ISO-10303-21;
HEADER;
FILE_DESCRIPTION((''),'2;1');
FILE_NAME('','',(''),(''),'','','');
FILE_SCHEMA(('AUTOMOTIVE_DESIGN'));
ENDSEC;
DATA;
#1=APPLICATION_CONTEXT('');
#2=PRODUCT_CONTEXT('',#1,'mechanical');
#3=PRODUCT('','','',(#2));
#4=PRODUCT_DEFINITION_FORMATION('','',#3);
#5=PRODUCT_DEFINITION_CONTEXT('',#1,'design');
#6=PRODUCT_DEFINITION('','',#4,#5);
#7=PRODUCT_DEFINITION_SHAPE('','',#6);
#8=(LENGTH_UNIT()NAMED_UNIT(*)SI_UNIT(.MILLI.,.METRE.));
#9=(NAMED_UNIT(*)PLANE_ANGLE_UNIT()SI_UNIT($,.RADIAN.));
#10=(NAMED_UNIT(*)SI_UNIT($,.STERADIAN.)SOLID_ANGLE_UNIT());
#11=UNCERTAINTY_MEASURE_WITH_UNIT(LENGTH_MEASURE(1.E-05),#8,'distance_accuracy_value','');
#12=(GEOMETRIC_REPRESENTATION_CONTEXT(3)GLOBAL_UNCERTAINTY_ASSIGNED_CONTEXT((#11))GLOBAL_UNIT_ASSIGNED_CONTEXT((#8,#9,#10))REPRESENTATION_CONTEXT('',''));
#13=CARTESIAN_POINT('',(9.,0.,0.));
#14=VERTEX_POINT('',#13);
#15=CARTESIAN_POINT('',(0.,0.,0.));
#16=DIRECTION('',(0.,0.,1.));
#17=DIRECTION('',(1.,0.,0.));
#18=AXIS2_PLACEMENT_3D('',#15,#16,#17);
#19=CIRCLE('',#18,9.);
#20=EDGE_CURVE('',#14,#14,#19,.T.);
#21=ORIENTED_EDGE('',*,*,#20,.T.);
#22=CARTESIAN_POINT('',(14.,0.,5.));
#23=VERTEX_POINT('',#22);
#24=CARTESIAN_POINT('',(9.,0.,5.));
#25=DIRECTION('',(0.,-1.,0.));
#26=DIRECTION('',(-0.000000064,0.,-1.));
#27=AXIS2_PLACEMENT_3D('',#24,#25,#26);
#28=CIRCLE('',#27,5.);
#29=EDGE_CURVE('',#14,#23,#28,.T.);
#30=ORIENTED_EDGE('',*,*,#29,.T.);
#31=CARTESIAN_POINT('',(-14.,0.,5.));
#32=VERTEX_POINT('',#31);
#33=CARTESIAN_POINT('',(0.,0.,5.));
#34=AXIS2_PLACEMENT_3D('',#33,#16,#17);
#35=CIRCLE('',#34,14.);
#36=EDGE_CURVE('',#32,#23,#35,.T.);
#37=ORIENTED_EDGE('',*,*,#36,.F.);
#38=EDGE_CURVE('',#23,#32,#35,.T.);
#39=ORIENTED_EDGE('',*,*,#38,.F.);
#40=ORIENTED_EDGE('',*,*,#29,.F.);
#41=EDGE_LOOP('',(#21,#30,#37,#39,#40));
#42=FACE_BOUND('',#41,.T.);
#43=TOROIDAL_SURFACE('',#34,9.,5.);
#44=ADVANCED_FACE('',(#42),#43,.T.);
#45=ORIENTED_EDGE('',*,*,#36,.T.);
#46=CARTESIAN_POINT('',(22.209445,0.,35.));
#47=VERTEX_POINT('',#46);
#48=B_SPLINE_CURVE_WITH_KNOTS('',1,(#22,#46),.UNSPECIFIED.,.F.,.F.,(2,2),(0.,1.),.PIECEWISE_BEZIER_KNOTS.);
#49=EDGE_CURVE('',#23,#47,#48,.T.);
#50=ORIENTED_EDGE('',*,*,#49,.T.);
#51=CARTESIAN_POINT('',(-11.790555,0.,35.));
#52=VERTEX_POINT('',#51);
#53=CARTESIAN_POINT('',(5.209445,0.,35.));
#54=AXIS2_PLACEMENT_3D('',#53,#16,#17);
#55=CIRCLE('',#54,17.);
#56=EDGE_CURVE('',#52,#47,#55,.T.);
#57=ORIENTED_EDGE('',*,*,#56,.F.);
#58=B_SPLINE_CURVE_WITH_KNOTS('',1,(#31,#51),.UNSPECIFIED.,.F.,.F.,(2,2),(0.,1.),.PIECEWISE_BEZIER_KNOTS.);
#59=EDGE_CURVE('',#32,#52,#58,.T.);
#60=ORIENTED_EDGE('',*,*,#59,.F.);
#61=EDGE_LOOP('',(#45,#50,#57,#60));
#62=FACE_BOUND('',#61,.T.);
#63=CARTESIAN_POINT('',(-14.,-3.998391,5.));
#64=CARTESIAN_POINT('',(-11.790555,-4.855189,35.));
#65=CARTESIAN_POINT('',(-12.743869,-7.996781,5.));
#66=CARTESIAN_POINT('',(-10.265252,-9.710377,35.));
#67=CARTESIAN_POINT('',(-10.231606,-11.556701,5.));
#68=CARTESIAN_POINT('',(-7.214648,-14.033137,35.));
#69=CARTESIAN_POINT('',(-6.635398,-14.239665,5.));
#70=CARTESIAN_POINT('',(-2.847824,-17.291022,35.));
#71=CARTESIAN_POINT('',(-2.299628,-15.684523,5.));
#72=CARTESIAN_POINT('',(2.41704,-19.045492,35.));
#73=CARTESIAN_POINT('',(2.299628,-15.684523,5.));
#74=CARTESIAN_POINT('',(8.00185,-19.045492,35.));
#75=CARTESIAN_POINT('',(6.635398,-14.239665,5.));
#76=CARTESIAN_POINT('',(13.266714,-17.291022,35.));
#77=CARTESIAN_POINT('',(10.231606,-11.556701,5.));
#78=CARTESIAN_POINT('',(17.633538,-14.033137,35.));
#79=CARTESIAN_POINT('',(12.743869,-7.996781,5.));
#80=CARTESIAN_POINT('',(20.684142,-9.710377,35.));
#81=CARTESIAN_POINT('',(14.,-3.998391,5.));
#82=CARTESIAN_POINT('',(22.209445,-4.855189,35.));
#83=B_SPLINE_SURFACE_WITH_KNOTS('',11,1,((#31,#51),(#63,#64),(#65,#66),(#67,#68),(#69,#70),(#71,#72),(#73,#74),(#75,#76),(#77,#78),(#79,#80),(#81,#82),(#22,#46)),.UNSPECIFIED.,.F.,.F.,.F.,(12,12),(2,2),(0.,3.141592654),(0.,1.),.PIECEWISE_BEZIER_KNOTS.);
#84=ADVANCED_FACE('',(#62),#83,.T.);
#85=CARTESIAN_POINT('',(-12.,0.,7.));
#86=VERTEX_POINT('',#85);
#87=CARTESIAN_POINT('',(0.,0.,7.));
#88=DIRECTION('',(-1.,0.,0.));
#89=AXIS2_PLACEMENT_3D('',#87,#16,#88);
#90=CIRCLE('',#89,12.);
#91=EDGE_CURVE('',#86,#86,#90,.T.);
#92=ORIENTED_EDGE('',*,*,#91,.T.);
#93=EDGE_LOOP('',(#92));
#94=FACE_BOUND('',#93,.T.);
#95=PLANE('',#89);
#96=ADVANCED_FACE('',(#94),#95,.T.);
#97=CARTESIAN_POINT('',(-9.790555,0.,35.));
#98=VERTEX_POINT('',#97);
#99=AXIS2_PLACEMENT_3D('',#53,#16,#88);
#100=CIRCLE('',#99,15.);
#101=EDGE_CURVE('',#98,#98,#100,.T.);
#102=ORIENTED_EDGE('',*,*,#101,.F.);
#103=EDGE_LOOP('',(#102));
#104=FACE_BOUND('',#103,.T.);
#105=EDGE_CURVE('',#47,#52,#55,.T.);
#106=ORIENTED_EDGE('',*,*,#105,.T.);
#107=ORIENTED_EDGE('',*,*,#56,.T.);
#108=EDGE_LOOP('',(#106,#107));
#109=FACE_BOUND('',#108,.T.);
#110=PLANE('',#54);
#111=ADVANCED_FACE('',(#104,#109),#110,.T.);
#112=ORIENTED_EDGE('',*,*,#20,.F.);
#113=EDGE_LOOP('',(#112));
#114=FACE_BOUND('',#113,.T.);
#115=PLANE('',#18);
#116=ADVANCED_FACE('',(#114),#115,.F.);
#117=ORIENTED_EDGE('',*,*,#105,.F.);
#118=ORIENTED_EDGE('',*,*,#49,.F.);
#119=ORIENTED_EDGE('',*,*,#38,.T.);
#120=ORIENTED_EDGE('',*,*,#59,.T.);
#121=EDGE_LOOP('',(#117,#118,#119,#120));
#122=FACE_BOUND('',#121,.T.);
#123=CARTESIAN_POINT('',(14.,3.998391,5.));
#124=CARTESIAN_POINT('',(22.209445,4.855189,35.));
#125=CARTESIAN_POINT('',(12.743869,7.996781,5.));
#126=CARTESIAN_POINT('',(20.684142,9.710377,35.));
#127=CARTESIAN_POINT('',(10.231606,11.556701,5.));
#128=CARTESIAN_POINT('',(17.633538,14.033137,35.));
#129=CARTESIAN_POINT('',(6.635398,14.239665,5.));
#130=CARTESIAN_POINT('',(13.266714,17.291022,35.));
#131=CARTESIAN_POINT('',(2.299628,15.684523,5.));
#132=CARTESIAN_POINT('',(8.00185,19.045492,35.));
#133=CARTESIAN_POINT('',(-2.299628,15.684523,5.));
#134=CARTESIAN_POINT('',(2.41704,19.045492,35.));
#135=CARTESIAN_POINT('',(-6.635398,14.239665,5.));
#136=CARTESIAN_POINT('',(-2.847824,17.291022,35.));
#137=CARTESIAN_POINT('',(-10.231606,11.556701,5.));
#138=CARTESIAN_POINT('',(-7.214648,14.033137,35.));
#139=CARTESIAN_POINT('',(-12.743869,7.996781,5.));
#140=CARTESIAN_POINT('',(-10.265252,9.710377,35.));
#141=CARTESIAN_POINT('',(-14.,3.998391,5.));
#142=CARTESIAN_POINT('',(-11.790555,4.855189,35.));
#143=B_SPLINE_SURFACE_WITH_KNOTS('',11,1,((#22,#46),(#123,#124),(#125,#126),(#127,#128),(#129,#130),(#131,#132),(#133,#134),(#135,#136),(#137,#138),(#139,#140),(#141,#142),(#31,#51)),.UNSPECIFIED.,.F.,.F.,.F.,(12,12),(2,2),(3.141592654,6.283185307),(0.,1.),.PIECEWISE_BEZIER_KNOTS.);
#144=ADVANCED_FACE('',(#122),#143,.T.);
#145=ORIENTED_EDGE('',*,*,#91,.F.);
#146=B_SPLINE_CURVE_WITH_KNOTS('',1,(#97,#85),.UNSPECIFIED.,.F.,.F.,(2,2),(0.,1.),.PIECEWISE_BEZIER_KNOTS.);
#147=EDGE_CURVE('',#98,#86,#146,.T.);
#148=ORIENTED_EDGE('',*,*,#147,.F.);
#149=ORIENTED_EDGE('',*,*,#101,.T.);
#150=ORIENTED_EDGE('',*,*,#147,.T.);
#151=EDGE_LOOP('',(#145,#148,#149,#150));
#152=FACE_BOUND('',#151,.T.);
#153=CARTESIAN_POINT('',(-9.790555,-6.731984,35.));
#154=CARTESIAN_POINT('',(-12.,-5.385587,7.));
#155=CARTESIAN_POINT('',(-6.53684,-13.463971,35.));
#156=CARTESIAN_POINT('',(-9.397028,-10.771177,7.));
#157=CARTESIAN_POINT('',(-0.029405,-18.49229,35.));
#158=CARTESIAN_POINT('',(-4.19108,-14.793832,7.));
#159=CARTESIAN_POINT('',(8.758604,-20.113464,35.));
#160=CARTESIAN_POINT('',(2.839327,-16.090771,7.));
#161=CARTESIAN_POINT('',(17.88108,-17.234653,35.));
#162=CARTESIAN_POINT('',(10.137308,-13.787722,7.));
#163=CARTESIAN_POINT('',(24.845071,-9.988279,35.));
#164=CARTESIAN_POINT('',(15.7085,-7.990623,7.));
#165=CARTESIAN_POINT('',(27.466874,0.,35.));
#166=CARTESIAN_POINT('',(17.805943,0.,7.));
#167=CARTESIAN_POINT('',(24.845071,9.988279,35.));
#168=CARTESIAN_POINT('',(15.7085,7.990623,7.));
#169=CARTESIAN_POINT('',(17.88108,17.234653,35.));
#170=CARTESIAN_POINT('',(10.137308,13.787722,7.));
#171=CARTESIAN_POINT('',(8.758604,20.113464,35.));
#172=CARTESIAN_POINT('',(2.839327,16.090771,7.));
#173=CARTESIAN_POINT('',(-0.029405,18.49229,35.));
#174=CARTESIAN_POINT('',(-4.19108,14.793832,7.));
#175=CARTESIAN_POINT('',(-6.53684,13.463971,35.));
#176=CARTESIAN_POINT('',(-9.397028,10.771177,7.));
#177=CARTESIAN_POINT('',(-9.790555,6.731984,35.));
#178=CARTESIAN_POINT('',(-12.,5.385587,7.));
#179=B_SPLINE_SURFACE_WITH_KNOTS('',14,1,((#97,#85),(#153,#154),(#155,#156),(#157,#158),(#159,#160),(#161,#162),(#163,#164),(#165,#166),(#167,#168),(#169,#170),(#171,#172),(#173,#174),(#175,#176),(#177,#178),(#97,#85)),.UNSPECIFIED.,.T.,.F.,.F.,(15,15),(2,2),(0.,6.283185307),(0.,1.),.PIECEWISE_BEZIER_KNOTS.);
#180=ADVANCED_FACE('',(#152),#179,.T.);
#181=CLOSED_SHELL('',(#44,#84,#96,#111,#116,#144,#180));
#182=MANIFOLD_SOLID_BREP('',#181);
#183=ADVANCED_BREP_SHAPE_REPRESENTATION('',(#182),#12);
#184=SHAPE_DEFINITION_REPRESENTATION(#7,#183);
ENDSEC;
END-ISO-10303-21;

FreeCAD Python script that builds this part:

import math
import FreeCAD as App
import Part
import Sketcher
Q = App.Units.Quantity

doc = App.newDocument("Part")
body = doc.addObject("PartDesign::Body", "Body")

# Sketch on XZ plane
sketch1 = body.newObject("Sketcher::SketchObject", "Sketch")
sketch1.AttachmentSupport = (doc.getObject("XZ_Plane"), [""])
sketch1.MapMode = "FlatFace"
sketch1.addGeometry(Part.LineSegment(App.Vector(14, 5, 0), App.Vector(0, 5, 0)), False)
sketch1.addGeometry(Part.LineSegment(App.Vector(0, 5, 0), App.Vector(0, 0, 0)), False)
sketch1.addGeometry(Part.LineSegment(App.Vector(0, 0, 0), App.Vector(9, 0, 0)), False)
sketch1.addGeometry(Part.ArcOfCircle(Part.Circle(App.Vector(9, 5, 0), App.Vector(0, 0, 1), 5), math.radians(-90), math.radians(0)), False)
sketch1.addConstraint(Sketcher.Constraint("Coincident", 0, 2, 1, 1))
sketch1.addConstraint(Sketcher.Constraint("Coincident", 1, 2, 2, 1))
sketch1.addConstraint(Sketcher.Constraint("Tangent", 2, 2, 3, 1))
sketch1.addConstraint(Sketcher.Constraint("Coincident", 3, 2, 0, 1))
sketch1.addConstraint(Sketcher.Constraint("Horizontal", 0))
sketch1.addConstraint(Sketcher.Constraint("Vertical", 1))
sketch1.addConstraint(Sketcher.Constraint("Horizontal", 2))
sketch1.addConstraint(Sketcher.Constraint("Coincident", 1, 2, -1, 1))
sketch1.addConstraint(Sketcher.Constraint("Horizontal", 3, 3, 0, 2))
sketch1.addConstraint(Sketcher.Constraint("Radius", 3, Q("5 mm")))
sketch1.addConstraint(Sketcher.Constraint("DistanceX", 0, 2, 0, 1, Q("14 mm")))
revolution = body.newObject("PartDesign::Revolution", "Revolution")
revolution.Profile = sketch1
revolution.ReferenceAxis = (sketch1, ["V_Axis"])
revolution.Angle = 360

# Sketch on XY plane
sketch2 = body.newObject("Sketcher::SketchObject", "Sketch001")
sketch2.AttachmentSupport = (doc.getObject("XY_Plane"), [""])
sketch2.MapMode = "FlatFace"
sketch2.AttachmentOffset = App.Placement(App.Vector(0, 0, 5), App.Rotation())
sketch2.addGeometry(Part.Circle(App.Vector(0, 0, 0), App.Vector(0, 0, 1), 14), False)
sketch2.addConstraint(Sketcher.Constraint("Coincident", 0, 3, -1, 1))
sketch2.addConstraint(Sketcher.Constraint("Diameter", 0, Q("28 mm")))

# Sketch on XY plane
sketch3 = body.newObject("Sketcher::SketchObject", "Sketch002")
sketch3.AttachmentSupport = (doc.getObject("XY_Plane"), [""])
sketch3.MapMode = "FlatFace"
sketch3.AttachmentOffset = App.Placement(App.Vector(0, 0, 35), App.Rotation())
sketch3.addGeometry(Part.Circle(App.Vector(5, 0, 0), App.Vector(0, 0, 1), 17), False)
sketch3.addConstraint(Sketcher.Constraint("PointOnObject", 0, 3, -1))
sketch3.addConstraint(Sketcher.Constraint("Diameter", 0, Q("34 mm")))
sketch3.addConstraint(Sketcher.Constraint("DistanceX", -1, 1, 0, 3, Q("5.209445 mm")))

additiveloft = body.newObject("PartDesign::AdditiveLoft", "AdditiveLoft")
additiveloft.Profile = sketch2
additiveloft.Sections = [sketch3]

# Sketch on XY plane
sketch4 = body.newObject("Sketcher::SketchObject", "Sketch003")
sketch4.AttachmentSupport = (doc.getObject("XY_Plane"), [""])
sketch4.MapMode = "FlatFace"
sketch4.AttachmentOffset = App.Placement(App.Vector(0, 0, 35), App.Rotation())
sketch4.addGeometry(Part.Circle(App.Vector(5, 0, 0), App.Vector(0, 0, 1), 15), False)
sketch4.addConstraint(Sketcher.Constraint("PointOnObject", 0, 3, -1))
sketch4.addConstraint(Sketcher.Constraint("Diameter", 0, Q("30 mm")))
sketch4.addConstraint(Sketcher.Constraint("DistanceX", -1, 1, 0, 3, Q("5.209445 mm")))

# Sketch on XY plane
sketch5 = body.newObject("Sketcher::SketchObject", "Sketch004")
sketch5.AttachmentSupport = (doc.getObject("XY_Plane"), [""])
sketch5.MapMode = "FlatFace"
sketch5.AttachmentOffset = App.Placement(App.Vector(0, 0, 7), App.Rotation())
sketch5.addGeometry(Part.Circle(App.Vector(0, 0, 0), App.Vector(0, 0, 1), 12), False)
sketch5.addConstraint(Sketcher.Constraint("Coincident", 0, 3, -1, 1))
sketch5.addConstraint(Sketcher.Constraint("Diameter", 0, Q("24 mm")))

subtractiveloft = body.newObject("PartDesign::SubtractiveLoft", "SubtractiveLoft")
subtractiveloft.Profile = sketch4
subtractiveloft.Sections = [sketch5]

doc.recompute()
